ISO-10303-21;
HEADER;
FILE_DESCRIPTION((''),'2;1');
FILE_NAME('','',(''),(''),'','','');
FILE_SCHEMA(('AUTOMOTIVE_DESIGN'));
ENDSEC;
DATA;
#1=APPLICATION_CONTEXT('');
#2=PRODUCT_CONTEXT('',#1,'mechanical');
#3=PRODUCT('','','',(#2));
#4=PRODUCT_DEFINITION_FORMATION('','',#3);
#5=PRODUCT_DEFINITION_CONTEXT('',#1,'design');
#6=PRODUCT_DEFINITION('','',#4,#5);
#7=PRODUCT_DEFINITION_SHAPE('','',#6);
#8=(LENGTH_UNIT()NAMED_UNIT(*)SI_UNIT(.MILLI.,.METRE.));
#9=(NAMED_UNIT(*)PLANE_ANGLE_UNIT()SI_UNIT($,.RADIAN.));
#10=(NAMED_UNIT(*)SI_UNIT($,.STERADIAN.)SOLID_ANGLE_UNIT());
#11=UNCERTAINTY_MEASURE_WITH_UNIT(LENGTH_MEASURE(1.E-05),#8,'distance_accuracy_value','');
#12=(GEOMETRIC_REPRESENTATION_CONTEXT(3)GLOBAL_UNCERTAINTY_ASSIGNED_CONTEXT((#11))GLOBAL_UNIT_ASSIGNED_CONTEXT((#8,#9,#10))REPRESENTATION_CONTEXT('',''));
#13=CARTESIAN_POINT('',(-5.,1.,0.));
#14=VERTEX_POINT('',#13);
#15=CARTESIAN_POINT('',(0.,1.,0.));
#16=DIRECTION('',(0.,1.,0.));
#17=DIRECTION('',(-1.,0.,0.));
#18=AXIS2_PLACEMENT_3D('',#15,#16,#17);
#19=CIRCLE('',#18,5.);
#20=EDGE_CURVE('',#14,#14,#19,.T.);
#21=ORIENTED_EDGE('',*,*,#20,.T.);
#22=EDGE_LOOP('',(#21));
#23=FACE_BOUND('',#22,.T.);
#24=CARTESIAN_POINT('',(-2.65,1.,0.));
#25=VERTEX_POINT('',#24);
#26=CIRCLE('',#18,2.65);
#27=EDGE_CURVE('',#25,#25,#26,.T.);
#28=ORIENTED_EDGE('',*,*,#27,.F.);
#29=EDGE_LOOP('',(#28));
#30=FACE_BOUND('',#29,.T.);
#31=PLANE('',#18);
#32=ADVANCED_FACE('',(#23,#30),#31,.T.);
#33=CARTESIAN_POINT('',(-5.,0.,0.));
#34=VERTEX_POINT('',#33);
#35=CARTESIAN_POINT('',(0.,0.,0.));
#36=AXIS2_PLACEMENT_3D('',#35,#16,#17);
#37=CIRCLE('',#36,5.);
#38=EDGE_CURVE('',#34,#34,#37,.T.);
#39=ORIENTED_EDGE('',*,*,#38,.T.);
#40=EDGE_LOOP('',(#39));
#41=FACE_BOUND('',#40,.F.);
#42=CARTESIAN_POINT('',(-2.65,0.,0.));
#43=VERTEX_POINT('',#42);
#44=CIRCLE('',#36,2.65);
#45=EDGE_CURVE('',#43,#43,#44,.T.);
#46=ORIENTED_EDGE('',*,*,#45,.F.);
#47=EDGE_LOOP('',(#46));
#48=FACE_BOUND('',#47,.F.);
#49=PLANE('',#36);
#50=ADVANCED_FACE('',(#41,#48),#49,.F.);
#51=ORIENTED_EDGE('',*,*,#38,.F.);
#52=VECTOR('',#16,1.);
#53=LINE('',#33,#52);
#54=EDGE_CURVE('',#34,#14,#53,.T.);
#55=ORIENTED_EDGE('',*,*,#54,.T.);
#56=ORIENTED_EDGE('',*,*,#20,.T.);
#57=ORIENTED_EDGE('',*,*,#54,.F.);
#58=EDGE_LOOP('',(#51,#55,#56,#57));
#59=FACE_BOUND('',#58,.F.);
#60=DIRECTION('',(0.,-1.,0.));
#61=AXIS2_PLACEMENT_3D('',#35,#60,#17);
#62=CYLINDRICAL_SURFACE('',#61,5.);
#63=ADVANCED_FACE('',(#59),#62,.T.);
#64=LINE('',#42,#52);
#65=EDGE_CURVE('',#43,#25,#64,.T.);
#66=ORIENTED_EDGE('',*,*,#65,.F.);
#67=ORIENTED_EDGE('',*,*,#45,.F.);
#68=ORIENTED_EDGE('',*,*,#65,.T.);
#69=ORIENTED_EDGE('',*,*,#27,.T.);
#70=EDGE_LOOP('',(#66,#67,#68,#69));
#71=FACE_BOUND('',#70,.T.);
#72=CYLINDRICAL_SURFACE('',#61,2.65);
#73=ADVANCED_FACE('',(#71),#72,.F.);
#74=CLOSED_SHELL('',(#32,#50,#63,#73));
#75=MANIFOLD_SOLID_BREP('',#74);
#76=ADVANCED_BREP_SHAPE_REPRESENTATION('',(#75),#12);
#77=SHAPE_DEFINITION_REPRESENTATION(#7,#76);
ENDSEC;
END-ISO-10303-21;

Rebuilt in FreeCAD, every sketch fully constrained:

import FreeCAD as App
import Part
import Sketcher

V = App.Vector
Q = App.Units.Quantity

doc = App.newDocument("Part")
body = doc.addObject("PartDesign::Body", "Body")

# Sketch on XZ plane
sketch1 = doc.addObject("Sketcher::SketchObject", "Sketch")
body.addObject(sketch1)
sketch1.AttachmentSupport = (doc.XZ_Plane, [""])
sketch1.MapMode = "FlatFace"
sketch1.addGeometry([
    Part.Circle(V(0, 0, 0), V(0, 0, 1), 5),
    Part.Circle(V(0, 0, 0), V(0, 0, 1), 2.6),
], False)
sketch1.addConstraint([
    Sketcher.Constraint("Coincident", 0, 3, -1, 1),
    Sketcher.Constraint("Coincident", 1, 3, -1, 1),
    Sketcher.Constraint("Diameter", 0, Q("10 mm")),
    Sketcher.Constraint("Diameter", 1, Q("5.3 mm")),
])
pad1 = doc.addObject("PartDesign::Pad", "Pad")
body.addObject(pad1)
pad1.Profile = sketch1
pad1.Length = 1
pad1.Reversed = True

doc.recompute()
